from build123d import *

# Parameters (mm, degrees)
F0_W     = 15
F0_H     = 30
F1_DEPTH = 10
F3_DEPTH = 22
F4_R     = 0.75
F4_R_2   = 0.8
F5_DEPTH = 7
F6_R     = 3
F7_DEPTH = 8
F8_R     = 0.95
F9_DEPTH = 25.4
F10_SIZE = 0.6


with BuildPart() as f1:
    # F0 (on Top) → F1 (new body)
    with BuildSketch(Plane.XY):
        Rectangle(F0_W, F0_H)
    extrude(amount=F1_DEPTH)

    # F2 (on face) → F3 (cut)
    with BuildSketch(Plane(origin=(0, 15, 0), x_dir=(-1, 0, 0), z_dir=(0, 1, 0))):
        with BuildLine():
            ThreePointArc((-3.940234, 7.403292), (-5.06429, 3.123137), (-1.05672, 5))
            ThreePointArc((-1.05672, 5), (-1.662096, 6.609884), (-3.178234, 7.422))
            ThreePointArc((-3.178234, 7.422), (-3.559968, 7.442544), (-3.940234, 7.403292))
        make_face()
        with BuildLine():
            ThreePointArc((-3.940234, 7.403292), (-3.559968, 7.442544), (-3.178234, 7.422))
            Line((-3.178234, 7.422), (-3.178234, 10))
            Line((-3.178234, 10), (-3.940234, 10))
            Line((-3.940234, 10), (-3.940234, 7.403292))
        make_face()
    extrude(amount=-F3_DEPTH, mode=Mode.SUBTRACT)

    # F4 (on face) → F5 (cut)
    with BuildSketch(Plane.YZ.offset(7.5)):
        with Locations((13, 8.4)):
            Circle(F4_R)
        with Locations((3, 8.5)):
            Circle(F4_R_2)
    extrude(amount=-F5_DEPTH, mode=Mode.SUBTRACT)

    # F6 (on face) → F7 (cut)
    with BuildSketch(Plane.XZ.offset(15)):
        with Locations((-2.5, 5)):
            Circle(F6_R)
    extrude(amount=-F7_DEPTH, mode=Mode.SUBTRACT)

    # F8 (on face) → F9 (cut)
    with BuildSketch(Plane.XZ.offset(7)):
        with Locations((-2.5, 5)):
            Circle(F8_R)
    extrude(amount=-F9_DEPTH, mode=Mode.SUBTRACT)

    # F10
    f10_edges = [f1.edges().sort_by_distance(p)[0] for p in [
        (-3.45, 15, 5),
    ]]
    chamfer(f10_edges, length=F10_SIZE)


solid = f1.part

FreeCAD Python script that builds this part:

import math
import FreeCAD as App
import Part
import Sketcher
from FreeCAD import Vector


def edges_at(feature, points):
    """Names of the edges that pass closest to the given points."""
    edges = feature.Shape.Edges
    near = lambda p: min(range(len(edges)), key=lambda i: edges[i].distToShape(Part.Vertex(*p))[0])
    return sorted({f"Edge{near(p) + 1}" for p in points})


def add_polygon(sketch, points):
    """Adds a closed chain of lines whose ends are joined by coincident constraints."""
    first, n = sketch.GeometryCount, len(points)
    for a, b in zip(points, points[1:] + points[:1]):
        sketch.addGeometry(Part.LineSegment(App.Vector(*a, 0), App.Vector(*b, 0)), False)
    for i in range(n):
        sketch.addConstraint(Sketcher.Constraint("Coincident", first + i, 2, first + (i + 1) % n, 1))

doc = App.newDocument("Part")
body = doc.addObject("PartDesign::Body", "Body")

sketch1 = body.newObject("Sketcher::SketchObject", "Sketch")
sketch1.AttachmentSupport = (doc.getObject("XY_Plane"), [""])
sketch1.MapMode = "FlatFace"
add_polygon(sketch1, [(-7.5, 15), (-7.5, -15), (7.5, -15), (7.5, 15)])
sketch1.addConstraint([
    Sketcher.Constraint("Vertical", 0),
    Sketcher.Constraint("Horizontal", 1),
    Sketcher.Constraint("Vertical", 2),
    Sketcher.Constraint("Horizontal", 3),
    Sketcher.Constraint("Symmetric", 0, 2, 2, 2, -1, 1),
    Sketcher.Constraint("DistanceX", 1, 1, 1, 2, 15.0),
    Sketcher.Constraint("DistanceY", 0, 2, 0, 1, 30.0),
])
pad1 = body.newObject("PartDesign::Pad", "Pad")
pad1.Profile = sketch1
pad1.Length = 10

sketch2 = body.newObject("Sketcher::SketchObject", "Sketch001")
sketch2.AttachmentSupport = (doc.getObject("XZ_Plane"), [""])
sketch2.MapMode = "FlatFace"
sketch2.AttachmentOffset = App.Placement(Vector(0, 0, -15), App.Rotation())
sketch2.addGeometry([
    Part.ArcOfCircle(Part.Circle(Vector(3.5, 5, 0), Vector(0, 0, 1), 2.44328), math.radians(-179.999998), math.radians(79.619669)),
    Part.ArcOfCircle(Part.Circle(Vector(3.5, 5, 0), Vector(0, 0, 1), 2.44328), math.radians(97.567505), math.radians(180.000005)),
    Part.LineSegment(Vector(3.178234, 7.422, 0), Vector(3.178234, 10, 0)),
    Part.LineSegment(Vector(3.178234, 10, 0), Vector(3.940234, 10, 0)),
    Part.LineSegment(Vector(3.940234, 10, 0), Vector(3.940234, 7.403292, 0)),
], False)
sketch2.addConstraint([
    Sketcher.Constraint("Tangent", 0, 1, 1, 2),
    Sketcher.Constraint("Coincident", 1, 1, 2, 1),
    Sketcher.Constraint("Coincident", 2, 2, 3, 1),
    Sketcher.Constraint("Coincident", 3, 2, 4, 1),
    Sketcher.Constraint("Coincident", 4, 2, 0, 2),
    Sketcher.Constraint("Vertical", 2),
    Sketcher.Constraint("Horizontal", 3),
    Sketcher.Constraint("Vertical", 4),
    Sketcher.Constraint("Equal", 0, 1),
    Sketcher.Constraint("Horizontal", 1, 3, 0, 1),
    Sketcher.Constraint("DistanceY", -1, 1, 0, 3, 5.0),
    Sketcher.Constraint("DistanceY", -1, 1, 2, 2, 10.0),
    Sketcher.Constraint("DistanceX", -1, 1, 0, 3, 3.5),
    Sketcher.Constraint("DistanceX", 3, 1, 3, 2, 0.762),
    Sketcher.Constraint("DistanceY", 2, 1, 2, 2, 2.578),
    Sketcher.Constraint("Radius", 0, 2.44328),
])
pocket1 = body.newObject("PartDesign::Pocket", "Pocket")
pocket1.Profile = sketch2
pocket1.Length = 22
pocket1.Reversed = True

sketch3 = body.newObject("Sketcher::SketchObject", "Sketch002")
sketch3.AttachmentSupport = (doc.getObject("YZ_Plane"), [""])
sketch3.MapMode = "FlatFace"
sketch3.AttachmentOffset = App.Placement(Vector(0, 0, 7.5), App.Rotation())
sketch3.addGeometry([
    Part.Circle(Vector(13, 8.4, 0), Vector(0, 0, 1), 0.75),
    Part.Circle(Vector(3, 8.5, 0), Vector(0, 0, 1), 0.8),
], False)
sketch3.addConstraint([
    Sketcher.Constraint("Diameter", 0, 1.5),
    Sketcher.Constraint("Diameter", 1, 1.6),
    Sketcher.Constraint("DistanceX", -1, 1, 0, 3, 13.0),
    Sketcher.Constraint("DistanceX", -1, 1, 1, 3, 3.0),
    Sketcher.Constraint("DistanceY", -1, 1, 0, 3, 8.4),
    Sketcher.Constraint("DistanceY", -1, 1, 1, 3, 8.5),
])
pocket2 = body.newObject("PartDesign::Pocket", "Pocket001")
pocket2.Profile = sketch3
pocket2.Length = 7

sketch4 = body.newObject("Sketcher::SketchObject", "Sketch003")
sketch4.AttachmentSupport = (doc.getObject("XZ_Plane"), [""])
sketch4.MapMode = "FlatFace"
sketch4.AttachmentOffset = App.Placement(Vector(0, 0, 15), App.Rotation())
sketch4.addGeometry(Part.Circle(Vector(-2.5, 5, 0), Vector(0, 0, 1), 3), False)
sketch4.addConstraint([
    Sketcher.Constraint("Diameter", 0, 6.0),
    Sketcher.Constraint("DistanceY", -1, 1, 0, 3, 5.0),
    Sketcher.Constraint("DistanceX", 0, 3, -1, 1, 2.5),
])
pocket3 = body.newObject("PartDesign::Pocket", "Pocket002")
pocket3.Profile = sketch4
pocket3.Length = 8

sketch5 = body.newObject("Sketcher::SketchObject", "Sketch004")
sketch5.AttachmentSupport = (doc.getObject("XZ_Plane"), [""])
sketch5.MapMode = "FlatFace"
sketch5.AttachmentOffset = App.Placement(Vector(0, 0, 7), App.Rotation())
sketch5.addGeometry(Part.Circle(Vector(-2.5, 5, 0), Vector(0, 0, 1), 0.95), False)
sketch5.addConstraint([
    Sketcher.Constraint("Diameter", 0, 1.9),
    Sketcher.Constraint("DistanceY", -1, 1, 0, 3, 5.0),
    Sketcher.Constraint("DistanceX", 0, 3, -1, 1, 2.5),
])
pocket4 = body.newObject("PartDesign::Pocket", "Pocket003")
pocket4.Profile = sketch5
pocket4.Length = 25.4
doc.recompute()

chamfer = body.newObject("PartDesign::Chamfer", "Chamfer")
chamfer.Base = (pocket4, edges_at(pocket4, [(-3.45, 15, 5)]))
chamfer.Size = 0.6

doc.recompute()
